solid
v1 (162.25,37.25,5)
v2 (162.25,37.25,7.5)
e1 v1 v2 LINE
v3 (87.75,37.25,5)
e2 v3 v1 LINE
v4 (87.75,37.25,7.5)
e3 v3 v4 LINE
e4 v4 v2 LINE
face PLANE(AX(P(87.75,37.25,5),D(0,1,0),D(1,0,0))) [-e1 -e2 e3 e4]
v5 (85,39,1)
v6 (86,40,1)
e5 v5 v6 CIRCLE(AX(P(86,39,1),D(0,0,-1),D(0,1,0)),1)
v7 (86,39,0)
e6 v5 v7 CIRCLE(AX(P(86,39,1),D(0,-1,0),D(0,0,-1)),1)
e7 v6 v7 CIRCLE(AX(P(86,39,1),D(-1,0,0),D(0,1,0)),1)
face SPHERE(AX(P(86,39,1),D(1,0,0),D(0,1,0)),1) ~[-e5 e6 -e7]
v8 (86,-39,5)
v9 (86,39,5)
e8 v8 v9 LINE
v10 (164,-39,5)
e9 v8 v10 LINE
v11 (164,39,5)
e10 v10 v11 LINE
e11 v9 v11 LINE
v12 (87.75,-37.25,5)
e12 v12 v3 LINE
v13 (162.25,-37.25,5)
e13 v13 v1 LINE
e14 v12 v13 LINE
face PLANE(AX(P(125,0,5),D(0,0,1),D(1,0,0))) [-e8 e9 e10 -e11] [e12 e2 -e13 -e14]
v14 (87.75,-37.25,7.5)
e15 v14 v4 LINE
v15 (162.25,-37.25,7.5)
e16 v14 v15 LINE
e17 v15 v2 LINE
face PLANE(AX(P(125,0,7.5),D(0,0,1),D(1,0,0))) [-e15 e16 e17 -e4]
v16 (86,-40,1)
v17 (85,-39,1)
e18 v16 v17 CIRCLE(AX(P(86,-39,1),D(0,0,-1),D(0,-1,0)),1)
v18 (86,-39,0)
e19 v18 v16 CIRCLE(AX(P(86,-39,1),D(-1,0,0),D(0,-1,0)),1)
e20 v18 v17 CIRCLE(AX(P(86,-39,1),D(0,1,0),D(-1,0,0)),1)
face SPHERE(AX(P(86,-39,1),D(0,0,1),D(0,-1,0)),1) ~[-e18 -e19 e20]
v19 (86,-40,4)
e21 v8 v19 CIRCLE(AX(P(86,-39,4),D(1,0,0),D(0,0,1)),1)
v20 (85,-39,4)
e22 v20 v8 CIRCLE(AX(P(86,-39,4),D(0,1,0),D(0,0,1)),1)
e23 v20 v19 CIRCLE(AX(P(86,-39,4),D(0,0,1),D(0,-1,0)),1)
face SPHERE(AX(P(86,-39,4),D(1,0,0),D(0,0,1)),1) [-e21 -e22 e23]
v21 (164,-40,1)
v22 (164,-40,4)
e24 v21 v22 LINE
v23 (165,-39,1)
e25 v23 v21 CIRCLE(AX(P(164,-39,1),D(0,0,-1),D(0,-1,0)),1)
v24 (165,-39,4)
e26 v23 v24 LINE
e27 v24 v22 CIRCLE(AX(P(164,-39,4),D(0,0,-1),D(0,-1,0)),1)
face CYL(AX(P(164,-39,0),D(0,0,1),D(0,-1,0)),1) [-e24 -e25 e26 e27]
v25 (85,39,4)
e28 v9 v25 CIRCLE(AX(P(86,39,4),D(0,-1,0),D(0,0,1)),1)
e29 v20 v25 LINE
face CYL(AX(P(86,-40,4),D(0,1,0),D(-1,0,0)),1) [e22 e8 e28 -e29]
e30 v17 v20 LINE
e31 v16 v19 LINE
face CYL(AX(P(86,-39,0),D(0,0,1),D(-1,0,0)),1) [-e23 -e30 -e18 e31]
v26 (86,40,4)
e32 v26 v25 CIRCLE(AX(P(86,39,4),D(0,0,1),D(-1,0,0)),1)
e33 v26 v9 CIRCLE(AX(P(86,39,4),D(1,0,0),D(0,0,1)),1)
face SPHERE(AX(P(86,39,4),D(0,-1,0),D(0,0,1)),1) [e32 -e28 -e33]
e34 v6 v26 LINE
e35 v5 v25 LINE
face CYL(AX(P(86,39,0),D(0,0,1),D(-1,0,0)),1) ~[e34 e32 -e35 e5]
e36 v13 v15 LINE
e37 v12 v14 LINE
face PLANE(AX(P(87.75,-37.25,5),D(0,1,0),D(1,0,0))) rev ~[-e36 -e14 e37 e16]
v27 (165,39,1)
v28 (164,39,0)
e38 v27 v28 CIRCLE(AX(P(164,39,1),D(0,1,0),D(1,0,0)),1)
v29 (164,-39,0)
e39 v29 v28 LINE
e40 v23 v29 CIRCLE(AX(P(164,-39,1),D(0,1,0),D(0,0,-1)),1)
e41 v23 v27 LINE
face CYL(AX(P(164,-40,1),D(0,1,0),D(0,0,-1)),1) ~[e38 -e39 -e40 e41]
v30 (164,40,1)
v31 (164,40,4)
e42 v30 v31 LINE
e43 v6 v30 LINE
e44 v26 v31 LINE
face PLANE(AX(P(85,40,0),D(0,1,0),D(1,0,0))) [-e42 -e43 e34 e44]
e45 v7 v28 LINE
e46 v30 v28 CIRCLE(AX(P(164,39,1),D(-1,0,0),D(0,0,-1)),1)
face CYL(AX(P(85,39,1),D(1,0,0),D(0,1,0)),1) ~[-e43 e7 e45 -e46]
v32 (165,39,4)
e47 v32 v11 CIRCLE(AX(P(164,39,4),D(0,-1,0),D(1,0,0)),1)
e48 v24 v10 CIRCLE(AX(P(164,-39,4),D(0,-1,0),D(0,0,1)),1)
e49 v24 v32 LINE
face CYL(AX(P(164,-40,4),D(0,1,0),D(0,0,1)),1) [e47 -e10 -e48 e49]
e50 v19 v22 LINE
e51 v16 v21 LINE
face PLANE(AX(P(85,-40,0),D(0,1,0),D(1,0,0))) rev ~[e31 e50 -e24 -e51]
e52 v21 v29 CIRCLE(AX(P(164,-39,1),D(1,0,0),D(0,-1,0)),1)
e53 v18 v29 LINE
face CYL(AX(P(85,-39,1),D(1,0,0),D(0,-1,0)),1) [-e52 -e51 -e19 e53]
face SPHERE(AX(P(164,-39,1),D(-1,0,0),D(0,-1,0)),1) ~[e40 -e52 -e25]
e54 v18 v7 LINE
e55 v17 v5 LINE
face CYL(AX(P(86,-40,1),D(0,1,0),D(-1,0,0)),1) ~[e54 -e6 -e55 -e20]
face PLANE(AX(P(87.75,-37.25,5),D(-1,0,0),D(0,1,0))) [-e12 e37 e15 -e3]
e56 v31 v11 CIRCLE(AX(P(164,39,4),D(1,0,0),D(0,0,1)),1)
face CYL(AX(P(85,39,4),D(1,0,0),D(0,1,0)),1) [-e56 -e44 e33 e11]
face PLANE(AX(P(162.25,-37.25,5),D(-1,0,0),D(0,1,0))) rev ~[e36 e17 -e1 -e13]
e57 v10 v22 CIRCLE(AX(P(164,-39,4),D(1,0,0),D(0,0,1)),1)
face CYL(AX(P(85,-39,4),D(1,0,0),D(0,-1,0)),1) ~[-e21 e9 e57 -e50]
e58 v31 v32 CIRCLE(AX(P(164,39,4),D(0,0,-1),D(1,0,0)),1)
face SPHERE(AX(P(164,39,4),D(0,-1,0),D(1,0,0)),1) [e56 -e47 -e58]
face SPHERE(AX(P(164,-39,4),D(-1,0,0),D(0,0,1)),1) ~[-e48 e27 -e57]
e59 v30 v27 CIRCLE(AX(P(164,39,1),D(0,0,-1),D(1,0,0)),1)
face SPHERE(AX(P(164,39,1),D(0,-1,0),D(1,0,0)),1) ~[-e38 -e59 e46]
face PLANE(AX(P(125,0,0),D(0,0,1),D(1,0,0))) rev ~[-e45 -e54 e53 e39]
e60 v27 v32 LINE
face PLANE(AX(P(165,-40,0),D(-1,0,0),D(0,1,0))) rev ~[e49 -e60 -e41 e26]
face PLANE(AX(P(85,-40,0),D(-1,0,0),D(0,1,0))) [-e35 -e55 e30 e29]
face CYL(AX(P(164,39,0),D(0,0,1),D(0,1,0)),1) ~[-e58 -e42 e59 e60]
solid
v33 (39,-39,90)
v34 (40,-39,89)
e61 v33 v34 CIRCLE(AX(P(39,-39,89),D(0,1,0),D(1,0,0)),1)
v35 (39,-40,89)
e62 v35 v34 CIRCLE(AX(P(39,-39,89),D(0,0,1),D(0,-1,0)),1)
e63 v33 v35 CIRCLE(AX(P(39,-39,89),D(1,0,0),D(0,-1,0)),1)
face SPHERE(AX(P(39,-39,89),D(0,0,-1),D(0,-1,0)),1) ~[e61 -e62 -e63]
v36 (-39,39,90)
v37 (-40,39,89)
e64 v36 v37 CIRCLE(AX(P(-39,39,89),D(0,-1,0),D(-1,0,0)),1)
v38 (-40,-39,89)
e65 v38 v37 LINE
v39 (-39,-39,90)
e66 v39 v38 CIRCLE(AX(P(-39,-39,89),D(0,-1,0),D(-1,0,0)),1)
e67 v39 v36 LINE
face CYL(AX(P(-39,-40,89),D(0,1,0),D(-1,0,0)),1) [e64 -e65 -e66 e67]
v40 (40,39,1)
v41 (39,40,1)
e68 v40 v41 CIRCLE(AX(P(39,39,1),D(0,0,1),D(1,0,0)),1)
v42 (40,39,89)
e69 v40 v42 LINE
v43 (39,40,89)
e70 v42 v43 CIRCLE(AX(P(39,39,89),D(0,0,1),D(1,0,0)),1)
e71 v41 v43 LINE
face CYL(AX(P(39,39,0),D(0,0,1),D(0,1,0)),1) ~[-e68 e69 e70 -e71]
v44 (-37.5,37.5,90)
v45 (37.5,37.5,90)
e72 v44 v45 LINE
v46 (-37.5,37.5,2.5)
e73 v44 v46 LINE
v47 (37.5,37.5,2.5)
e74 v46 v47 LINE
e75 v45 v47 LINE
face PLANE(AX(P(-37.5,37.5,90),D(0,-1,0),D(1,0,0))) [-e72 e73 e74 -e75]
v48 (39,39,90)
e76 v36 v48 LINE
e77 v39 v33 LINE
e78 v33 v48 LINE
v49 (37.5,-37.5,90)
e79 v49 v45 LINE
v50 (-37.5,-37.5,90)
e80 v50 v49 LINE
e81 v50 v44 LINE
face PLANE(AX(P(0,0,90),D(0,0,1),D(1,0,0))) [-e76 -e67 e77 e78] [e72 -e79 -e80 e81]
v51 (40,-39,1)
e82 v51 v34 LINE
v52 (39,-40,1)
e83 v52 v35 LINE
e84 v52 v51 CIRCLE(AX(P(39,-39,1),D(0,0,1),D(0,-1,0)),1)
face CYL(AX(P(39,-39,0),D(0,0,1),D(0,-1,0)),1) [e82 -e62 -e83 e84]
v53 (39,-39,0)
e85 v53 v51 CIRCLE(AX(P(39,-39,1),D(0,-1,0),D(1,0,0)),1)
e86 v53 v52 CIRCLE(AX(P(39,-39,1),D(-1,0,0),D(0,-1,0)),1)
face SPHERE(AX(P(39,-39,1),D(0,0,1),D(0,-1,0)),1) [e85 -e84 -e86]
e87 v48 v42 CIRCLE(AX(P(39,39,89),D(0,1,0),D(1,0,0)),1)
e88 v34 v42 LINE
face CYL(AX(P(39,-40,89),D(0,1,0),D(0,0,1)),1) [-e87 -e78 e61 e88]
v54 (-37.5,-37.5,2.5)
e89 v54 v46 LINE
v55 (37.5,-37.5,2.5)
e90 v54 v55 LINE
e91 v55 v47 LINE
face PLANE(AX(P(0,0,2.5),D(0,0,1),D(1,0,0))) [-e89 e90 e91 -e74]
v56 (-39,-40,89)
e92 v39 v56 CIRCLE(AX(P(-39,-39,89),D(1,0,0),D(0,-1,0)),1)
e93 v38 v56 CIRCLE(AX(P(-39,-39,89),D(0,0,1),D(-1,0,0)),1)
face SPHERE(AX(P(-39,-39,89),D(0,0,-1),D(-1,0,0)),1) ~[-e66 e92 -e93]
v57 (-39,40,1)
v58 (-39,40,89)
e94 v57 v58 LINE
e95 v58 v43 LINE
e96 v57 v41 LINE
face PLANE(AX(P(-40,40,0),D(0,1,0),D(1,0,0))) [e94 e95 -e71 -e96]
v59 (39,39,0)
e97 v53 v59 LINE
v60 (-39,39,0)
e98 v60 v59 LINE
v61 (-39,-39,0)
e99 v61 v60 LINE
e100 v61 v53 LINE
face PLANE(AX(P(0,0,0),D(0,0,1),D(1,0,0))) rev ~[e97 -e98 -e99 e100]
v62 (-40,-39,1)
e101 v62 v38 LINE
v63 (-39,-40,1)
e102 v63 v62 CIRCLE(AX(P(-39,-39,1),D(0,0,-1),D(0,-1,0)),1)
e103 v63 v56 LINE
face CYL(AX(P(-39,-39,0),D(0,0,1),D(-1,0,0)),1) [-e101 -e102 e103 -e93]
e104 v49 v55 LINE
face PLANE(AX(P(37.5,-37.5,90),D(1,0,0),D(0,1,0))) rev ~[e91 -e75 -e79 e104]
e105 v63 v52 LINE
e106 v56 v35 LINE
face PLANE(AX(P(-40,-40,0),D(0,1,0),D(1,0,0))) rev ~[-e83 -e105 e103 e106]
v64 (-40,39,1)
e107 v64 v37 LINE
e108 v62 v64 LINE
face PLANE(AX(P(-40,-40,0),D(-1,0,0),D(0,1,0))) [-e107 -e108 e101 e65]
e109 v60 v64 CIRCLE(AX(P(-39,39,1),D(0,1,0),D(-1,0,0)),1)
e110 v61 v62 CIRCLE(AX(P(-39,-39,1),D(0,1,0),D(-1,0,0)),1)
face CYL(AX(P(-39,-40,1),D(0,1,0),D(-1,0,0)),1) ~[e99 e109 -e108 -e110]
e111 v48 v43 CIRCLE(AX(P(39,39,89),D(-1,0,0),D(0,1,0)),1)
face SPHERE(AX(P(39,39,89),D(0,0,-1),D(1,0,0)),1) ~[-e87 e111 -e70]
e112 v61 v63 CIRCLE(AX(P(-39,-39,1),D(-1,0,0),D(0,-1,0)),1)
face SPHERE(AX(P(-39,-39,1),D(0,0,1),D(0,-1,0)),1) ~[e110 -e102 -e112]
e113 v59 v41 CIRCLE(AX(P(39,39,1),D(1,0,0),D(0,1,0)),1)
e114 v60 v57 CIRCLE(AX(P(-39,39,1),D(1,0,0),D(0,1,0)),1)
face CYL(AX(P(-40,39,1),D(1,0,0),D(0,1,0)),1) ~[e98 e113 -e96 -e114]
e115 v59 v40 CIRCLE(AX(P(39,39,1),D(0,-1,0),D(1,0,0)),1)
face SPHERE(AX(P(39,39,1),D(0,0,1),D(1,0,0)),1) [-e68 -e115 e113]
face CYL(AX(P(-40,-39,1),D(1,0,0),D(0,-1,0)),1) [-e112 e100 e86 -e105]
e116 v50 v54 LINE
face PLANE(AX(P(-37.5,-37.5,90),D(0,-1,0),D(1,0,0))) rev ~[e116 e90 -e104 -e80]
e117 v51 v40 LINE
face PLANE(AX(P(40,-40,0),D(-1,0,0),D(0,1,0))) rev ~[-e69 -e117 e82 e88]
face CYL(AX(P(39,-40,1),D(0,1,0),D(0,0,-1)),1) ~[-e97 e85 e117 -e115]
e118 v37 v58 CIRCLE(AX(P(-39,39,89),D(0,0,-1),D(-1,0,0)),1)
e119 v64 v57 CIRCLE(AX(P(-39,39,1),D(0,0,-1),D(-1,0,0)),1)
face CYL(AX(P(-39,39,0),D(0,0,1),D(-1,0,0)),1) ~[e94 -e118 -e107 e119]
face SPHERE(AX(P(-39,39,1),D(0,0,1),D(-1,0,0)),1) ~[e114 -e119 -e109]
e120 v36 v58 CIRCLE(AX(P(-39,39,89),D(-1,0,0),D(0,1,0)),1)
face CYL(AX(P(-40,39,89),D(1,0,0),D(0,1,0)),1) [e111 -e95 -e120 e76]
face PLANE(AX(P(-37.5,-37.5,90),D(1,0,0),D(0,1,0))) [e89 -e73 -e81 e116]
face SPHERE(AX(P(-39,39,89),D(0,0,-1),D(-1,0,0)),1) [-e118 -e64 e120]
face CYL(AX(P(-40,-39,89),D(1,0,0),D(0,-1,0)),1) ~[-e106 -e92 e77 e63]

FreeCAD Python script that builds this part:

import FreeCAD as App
import Part
import Sketcher

V = App.Vector
Q = App.Units.Quantity


def edges_at(feature, points):
    """Names of the edges that pass closest to the given points."""
    edges = feature.Shape.Edges
    near = lambda p: min(range(len(edges)), key=lambda i: edges[i].distToShape(Part.Vertex(*p))[0])
    return sorted({f"Edge{near(p) + 1}" for p in points})


def add_polygon(sketch, points):
    """Adds a closed chain of lines whose ends are joined by coincident constraints."""
    first, n = sketch.GeometryCount, len(points)
    for a, b in zip(points, points[1:] + points[:1]):
        sketch.addGeometry(Part.LineSegment(App.Vector(*a, 0), App.Vector(*b, 0)), False)
    for i in range(n):
        sketch.addConstraint(Sketcher.Constraint("Coincident", first + i, 2, first + (i + 1) % n, 1))

doc = App.newDocument("Part")
params = doc.addObject("Spreadsheet::Sheet", "Params")
for row, (alias, value) in enumerate([
    ("sketch1_width", "80 mm"),
    ("pad1_length", "90 mm"),
    ("sketch2_width", "75 mm"),
    ("pocket1_length", "87.5 mm"),
    ("fillet_radius", "1 mm"),
    ("sketch3_width", "80 mm"),
    ("pad2_length", "5 mm"),
    ("sketch4_width", "74.5 mm"),
    ("pad3_length", "2.5 mm"),
    ("fillet2_radius", "1 mm"),
], start=1):
    params.set(f"A{row}", alias)
    params.set(f"B{row}", "=" + value)
    params.setAlias(f"B{row}", alias)

body = doc.addObject("PartDesign::Body", "Body")

# Sketch on XY plane
sketch1 = body.newObject("Sketcher::SketchObject", "Sketch")
sketch1.AttachmentSupport = (doc.getObject("XY_Plane"), [""])
sketch1.MapMode = "FlatFace"
add_polygon(sketch1, [(-40, 40), (-40, -40), (40, -40), (40, 40)])  # lines 0-3
sketch1.addConstraint([
    Sketcher.Constraint("Vertical", 0),
    Sketcher.Constraint("Horizontal", 1),
    Sketcher.Constraint("Vertical", 2),
    Sketcher.Constraint("Horizontal", 3),
    Sketcher.Constraint("Symmetric", 0, 2, 2, 2, -1, 1),
    Sketcher.Constraint("Equal", 3, 0),
    Sketcher.Constraint("DistanceX", 1, 1, 1, 2, Q("80 mm")),
])
sketch1.setExpression("Constraints[10]", "Params.sketch1_width")
pad1 = body.newObject("PartDesign::Pad", "Pad")
pad1.Profile = sketch1
pad1.setExpression("Length", "Params.pad1_length")

# Sketch on XY plane
sketch2 = body.newObject("Sketcher::SketchObject", "Sketch001")
sketch2.AttachmentSupport = (doc.getObject("XY_Plane"), [""])
sketch2.MapMode = "FlatFace"
sketch2.AttachmentOffset = App.Placement(V(0, 0, 90), App.Rotation())
add_polygon(sketch2, [(-38, 38), (-38, -38), (38, -38), (38, 38)])  # lines 0-3
sketch2.addConstraint([
    Sketcher.Constraint("Vertical", 0),
    Sketcher.Constraint("Horizontal", 1),
    Sketcher.Constraint("Vertical", 2),
    Sketcher.Constraint("Horizontal", 3),
    Sketcher.Constraint("Symmetric", 0, 2, 2, 2, -1, 1),
    Sketcher.Constraint("Equal", 3, 0),
    Sketcher.Constraint("DistanceX", 1, 1, 1, 2, Q("75 mm")),
])
sketch2.setExpression("Constraints[10]", "Params.sketch2_width")
pocket1 = body.newObject("PartDesign::Pocket", "Pocket")
pocket1.Profile = sketch2
pocket1.setExpression("Length", "Params.pocket1_length")
doc.recompute()

fillet = body.newObject("PartDesign::Fillet", "Fillet")
fillet.Base = (pocket1, edges_at(pocket1, [
    (-40, -40, 45),
    (40, -40, 45),
    (40, 40, 45),
    (-40, 40, 45),
    (0, -40, 0),
    (-40, 0, 0),
    (40, 0, 0),
    (0, 40, 0),
    (-40, 0, 90),
    (0, -40, 90),
    (40, 0, 90),
    (0, 40, 90),
]))
fillet.setExpression("Radius", "Params.fillet_radius")
body2 = doc.addObject("PartDesign::Body", "Body001")

# Sketch on XY plane
sketch3 = body2.newObject("Sketcher::SketchObject", "Sketch002")
sketch3.AttachmentSupport = (doc.getObject("XY_Plane001"), [""])
sketch3.MapMode = "FlatFace"
add_polygon(sketch3, [(85, 40), (85, -40), (165, -40), (165, 40)])  # lines 0-3
sketch3.addConstraint([
    Sketcher.Constraint("Vertical", 0),
    Sketcher.Constraint("Horizontal", 1),
    Sketcher.Constraint("Vertical", 2),
    Sketcher.Constraint("Horizontal", 3),
    Sketcher.Constraint("Equal", 3, 0),
    Sketcher.Constraint("DistanceX", 1, 1, 1, 2, Q("80 mm")),
    Sketcher.Constraint("DistanceX", -1, 1, 0, 2, Q("85 mm")),
    Sketcher.Constraint("DistanceY", 0, 2, -1, 1, Q("40 mm")),
])
sketch3.setExpression("Constraints[9]", "Params.sketch3_width")
pad2 = body2.newObject("PartDesign::Pad", "Pad001")
pad2.Profile = sketch3
pad2.setExpression("Length", "Params.pad2_length")

# Sketch on XY plane
sketch4 = body2.newObject("Sketcher::SketchObject", "Sketch003")
sketch4.AttachmentSupport = (doc.getObject("XY_Plane001"), [""])
sketch4.MapMode = "FlatFace"
sketch4.AttachmentOffset = App.Placement(V(0, 0, 5), App.Rotation())
add_polygon(sketch4, [(88, 37), (88, -37), (162, -37), (162, 37)])  # lines 0-3
sketch4.addConstraint([
    Sketcher.Constraint("Vertical", 0),
    Sketcher.Constraint("Horizontal", 1),
    Sketcher.Constraint("Vertical", 2),
    Sketcher.Constraint("Horizontal", 3),
    Sketcher.Constraint("Equal", 3, 0),
    Sketcher.Constraint("DistanceX", 1, 1, 1, 2, Q("74.5 mm")),
    Sketcher.Constraint("DistanceX", -1, 1, 0, 2, Q("87.75 mm")),
    Sketcher.Constraint("DistanceY", 0, 2, -1, 1, Q("37.25 mm")),
])
sketch4.setExpression("Constraints[9]", "Params.sketch4_width")
pad3 = body2.newObject("PartDesign::Pad", "Pad002")
pad3.Profile = sketch4
pad3.setExpression("Length", "Params.pad3_length")
doc.recompute()

fillet2 = body2.newObject("PartDesign::Fillet", "Fillet001")
fillet2.Base = (pad3, edges_at(pad3, [
    (125, -40, 5),
    (85, 0, 5),
    (165, 0, 5),
    (85, -40, 2.5),
    (125, -40, 0),
    (165, -40, 2.5),
    (165, 0, 0),
    (165, 40, 2.5),
    (125, 40, 5),
    (125, 40, 0),
    (85, 40, 2.5),
    (85, 0, 0),
]))
fillet2.setExpression("Radius", "Params.fillet2_radius")

doc.recompute()
